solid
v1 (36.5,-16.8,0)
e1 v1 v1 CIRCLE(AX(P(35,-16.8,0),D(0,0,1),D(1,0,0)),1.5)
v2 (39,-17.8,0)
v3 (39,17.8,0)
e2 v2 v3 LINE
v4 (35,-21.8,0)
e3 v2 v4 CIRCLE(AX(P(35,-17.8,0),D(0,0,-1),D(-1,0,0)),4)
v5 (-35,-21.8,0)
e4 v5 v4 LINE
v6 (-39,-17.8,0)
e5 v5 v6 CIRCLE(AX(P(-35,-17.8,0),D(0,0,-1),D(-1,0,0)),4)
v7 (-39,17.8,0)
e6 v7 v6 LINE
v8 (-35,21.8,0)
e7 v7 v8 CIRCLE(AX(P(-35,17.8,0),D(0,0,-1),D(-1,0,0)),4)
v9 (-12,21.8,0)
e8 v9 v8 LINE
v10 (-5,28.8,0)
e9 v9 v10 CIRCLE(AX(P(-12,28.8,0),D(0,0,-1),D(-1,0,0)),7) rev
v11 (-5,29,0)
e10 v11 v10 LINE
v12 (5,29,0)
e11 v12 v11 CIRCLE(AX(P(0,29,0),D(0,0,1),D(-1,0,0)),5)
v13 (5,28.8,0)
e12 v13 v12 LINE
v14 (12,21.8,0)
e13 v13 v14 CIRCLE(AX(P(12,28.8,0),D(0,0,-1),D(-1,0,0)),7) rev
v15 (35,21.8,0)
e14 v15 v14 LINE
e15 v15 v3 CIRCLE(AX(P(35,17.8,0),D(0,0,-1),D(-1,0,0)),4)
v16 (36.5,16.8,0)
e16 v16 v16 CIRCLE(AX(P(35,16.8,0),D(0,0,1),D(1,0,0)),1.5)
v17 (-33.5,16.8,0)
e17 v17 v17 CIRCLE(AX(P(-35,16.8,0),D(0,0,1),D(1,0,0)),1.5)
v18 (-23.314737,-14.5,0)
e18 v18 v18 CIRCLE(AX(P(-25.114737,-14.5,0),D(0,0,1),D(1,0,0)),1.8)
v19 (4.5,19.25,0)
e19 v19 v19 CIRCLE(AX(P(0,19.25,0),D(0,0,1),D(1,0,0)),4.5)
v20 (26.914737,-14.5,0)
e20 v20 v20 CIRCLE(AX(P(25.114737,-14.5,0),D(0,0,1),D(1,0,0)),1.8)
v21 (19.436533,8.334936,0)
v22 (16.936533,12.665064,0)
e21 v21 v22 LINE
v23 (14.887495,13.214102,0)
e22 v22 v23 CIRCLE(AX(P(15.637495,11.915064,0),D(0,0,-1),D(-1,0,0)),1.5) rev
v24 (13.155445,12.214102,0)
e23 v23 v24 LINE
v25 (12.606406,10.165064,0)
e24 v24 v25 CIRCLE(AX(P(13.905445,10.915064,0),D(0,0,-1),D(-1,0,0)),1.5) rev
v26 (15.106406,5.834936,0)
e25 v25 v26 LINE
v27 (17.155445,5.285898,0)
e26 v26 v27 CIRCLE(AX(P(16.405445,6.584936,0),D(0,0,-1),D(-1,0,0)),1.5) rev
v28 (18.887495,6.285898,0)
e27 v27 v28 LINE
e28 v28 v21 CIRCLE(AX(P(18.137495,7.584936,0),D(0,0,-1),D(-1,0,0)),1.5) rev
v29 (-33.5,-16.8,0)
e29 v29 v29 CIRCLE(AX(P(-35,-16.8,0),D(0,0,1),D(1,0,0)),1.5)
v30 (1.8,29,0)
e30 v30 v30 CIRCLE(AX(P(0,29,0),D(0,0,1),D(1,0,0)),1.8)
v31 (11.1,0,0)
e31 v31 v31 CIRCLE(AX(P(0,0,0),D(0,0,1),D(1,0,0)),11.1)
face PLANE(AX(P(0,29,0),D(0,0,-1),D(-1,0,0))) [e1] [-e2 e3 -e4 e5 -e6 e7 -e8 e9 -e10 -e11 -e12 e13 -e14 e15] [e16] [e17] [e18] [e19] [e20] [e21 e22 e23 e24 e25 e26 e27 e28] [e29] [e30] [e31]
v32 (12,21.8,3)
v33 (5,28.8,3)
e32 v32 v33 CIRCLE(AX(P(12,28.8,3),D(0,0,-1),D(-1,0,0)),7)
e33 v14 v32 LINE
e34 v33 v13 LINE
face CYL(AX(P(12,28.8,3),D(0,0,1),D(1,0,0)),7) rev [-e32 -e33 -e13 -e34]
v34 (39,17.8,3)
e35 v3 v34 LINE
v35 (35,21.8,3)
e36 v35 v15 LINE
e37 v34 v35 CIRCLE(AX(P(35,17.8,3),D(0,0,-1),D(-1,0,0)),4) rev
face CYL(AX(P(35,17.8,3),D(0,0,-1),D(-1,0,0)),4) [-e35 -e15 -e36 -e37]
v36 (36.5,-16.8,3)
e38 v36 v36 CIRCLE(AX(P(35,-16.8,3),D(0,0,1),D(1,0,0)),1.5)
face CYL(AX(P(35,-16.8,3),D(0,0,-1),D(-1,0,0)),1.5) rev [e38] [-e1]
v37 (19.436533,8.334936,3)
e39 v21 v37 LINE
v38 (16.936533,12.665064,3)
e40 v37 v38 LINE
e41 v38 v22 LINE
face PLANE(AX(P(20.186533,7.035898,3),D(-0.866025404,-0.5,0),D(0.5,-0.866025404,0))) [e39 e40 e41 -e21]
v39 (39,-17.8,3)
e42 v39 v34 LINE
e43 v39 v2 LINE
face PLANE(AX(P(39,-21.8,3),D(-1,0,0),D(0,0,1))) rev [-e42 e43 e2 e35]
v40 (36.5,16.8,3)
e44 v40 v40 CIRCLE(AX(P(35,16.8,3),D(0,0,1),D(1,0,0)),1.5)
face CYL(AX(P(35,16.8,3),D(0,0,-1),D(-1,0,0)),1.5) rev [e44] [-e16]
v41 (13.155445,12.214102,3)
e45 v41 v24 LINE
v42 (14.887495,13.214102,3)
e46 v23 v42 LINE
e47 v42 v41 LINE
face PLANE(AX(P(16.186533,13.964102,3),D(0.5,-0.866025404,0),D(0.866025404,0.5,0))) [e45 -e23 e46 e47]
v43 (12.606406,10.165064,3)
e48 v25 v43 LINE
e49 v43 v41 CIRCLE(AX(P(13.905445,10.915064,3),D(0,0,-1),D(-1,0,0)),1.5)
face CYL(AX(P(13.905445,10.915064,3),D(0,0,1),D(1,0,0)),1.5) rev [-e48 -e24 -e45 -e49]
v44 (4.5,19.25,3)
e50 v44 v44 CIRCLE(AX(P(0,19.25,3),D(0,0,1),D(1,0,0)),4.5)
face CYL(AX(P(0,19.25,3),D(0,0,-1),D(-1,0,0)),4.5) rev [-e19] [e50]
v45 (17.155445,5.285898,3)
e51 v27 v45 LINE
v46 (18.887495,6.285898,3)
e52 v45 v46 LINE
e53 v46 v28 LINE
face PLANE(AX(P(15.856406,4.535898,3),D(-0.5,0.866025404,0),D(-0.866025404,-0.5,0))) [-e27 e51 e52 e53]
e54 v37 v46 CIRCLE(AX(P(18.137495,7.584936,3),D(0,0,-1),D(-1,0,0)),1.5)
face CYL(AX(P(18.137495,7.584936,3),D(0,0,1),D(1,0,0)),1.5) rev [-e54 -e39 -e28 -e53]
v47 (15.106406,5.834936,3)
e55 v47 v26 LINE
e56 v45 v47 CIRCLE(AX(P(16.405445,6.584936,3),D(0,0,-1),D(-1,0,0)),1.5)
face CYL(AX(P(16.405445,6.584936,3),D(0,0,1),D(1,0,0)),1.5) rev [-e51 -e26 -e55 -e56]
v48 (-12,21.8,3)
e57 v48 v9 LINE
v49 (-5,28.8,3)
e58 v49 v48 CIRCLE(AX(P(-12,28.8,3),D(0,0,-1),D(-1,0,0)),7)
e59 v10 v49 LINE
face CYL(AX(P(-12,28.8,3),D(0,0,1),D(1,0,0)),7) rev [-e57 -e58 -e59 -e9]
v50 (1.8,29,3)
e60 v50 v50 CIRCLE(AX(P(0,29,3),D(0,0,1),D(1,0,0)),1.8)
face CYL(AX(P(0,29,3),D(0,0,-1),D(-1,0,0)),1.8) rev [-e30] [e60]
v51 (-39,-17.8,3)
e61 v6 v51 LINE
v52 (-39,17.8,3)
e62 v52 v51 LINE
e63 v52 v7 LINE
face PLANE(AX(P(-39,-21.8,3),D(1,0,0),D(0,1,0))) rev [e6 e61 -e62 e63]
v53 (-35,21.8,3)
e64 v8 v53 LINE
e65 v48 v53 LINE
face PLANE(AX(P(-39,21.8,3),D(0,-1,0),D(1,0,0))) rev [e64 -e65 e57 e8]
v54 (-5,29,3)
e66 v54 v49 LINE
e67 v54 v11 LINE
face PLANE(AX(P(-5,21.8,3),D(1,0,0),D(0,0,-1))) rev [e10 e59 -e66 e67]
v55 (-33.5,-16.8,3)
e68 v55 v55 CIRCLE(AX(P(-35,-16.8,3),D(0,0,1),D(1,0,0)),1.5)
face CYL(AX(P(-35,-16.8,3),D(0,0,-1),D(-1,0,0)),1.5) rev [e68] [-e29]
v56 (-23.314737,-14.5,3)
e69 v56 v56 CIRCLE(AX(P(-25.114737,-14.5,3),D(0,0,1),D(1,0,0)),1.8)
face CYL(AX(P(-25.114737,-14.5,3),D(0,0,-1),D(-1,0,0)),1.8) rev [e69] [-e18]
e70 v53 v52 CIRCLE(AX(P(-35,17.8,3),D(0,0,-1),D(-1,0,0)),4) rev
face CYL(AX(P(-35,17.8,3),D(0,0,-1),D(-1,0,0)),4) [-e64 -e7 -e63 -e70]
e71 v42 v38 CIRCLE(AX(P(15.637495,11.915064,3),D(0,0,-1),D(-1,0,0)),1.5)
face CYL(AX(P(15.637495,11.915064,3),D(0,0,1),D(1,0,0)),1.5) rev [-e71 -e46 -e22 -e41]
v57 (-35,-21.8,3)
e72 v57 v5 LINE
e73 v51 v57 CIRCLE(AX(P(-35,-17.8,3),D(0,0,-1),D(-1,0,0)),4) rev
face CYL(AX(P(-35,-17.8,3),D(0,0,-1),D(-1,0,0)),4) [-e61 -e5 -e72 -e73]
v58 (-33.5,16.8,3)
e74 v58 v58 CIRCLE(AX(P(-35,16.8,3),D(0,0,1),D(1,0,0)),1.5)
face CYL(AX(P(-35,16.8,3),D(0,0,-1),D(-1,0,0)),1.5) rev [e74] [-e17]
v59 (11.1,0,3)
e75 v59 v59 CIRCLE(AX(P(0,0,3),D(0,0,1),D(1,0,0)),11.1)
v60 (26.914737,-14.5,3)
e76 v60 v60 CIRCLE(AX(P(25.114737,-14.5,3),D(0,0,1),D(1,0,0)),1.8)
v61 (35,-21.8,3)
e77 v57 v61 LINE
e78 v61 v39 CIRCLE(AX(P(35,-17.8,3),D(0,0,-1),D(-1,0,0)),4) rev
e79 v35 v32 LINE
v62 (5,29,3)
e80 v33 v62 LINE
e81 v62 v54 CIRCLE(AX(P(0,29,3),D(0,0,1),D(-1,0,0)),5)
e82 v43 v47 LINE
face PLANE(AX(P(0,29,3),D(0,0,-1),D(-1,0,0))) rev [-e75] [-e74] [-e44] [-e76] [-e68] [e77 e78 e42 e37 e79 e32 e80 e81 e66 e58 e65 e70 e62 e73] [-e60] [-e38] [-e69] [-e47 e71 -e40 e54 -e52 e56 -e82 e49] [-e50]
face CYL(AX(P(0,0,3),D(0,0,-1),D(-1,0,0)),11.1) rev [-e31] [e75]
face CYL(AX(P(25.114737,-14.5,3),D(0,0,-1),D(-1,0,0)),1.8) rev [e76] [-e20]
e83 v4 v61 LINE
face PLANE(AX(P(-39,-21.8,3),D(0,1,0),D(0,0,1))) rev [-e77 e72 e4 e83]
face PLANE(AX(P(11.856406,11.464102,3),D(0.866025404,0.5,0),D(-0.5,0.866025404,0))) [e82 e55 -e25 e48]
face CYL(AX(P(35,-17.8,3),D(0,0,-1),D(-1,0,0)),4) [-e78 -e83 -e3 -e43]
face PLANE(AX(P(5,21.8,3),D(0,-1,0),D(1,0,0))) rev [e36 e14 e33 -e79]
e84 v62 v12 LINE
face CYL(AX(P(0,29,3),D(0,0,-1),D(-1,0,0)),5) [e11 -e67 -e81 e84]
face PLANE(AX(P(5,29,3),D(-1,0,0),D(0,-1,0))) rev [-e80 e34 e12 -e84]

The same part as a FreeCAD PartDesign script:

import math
import FreeCAD as App
import Part
import Sketcher
Q = App.Units.Quantity


def edges_at(feature, points):
    """Names of the edges that pass closest to the given points."""
    edges = feature.Shape.Edges
    near = lambda p: min(range(len(edges)), key=lambda i: edges[i].distToShape(Part.Vertex(*p))[0])
    return sorted({f"Edge{near(p) + 1}" for p in points})


def add_polygon(sketch, points):
    """Adds a closed chain of lines whose ends are joined by coincident constraints."""
    first, n = sketch.GeometryCount, len(points)
    for a, b in zip(points, points[1:] + points[:1]):
        sketch.addGeometry(Part.LineSegment(App.Vector(*a, 0), App.Vector(*b, 0)), False)
    for i in range(n):
        sketch.addConstraint(Sketcher.Constraint("Coincident", first + i, 2, first + (i + 1) % n, 1))

doc = App.newDocument("Part")
params = doc.addObject("Spreadsheet::Sheet", "Params")
for row, (alias, value) in enumerate([
    ("sketch1_diameter", "3 mm"),
    ("sketch1_diameter2", "9 mm"),
    ("sketch1_radius", "5 mm"),
    ("sketch1_diameter3", "3.6 mm"),
    ("sketch1_diameter4", "22.2 mm"),
    ("pad1_length", "3 mm"),
    ("fillet_radius", "1.5 mm"),
    ("fillet2_radius", "7 mm"),
    ("fillet3_radius", "4 mm"),
], start=1):
    params.set(f"A{row}", alias)
    params.set(f"B{row}", "=" + value)
    params.setAlias(f"B{row}", alias)

body = doc.addObject("PartDesign::Body", "Body")

sketch1 = body.newObject("Sketcher::SketchObject", "Sketch")
sketch1.AttachmentSupport = (doc.getObject("XY_Plane"), [""])
sketch1.MapMode = "FlatFace"
sketch1.addGeometry(Part.LineSegment(App.Vector(-5, 29, 0), App.Vector(-5, 21.8, 0)), False)
sketch1.addGeometry(Part.LineSegment(App.Vector(-5, 21.8, 0), App.Vector(-39, 21.8, 0)), False)
sketch1.addGeometry(Part.LineSegment(App.Vector(-39, 21.8, 0), App.Vector(-39, -21.8, 0)), False)
sketch1.addGeometry(Part.LineSegment(App.Vector(-39, -21.8, 0), App.Vector(39, -21.8, 0)), False)
sketch1.addGeometry(Part.LineSegment(App.Vector(39, -21.8, 0), App.Vector(39, 21.8, 0)), False)
sketch1.addGeometry(Part.LineSegment(App.Vector(39, 21.8, 0), App.Vector(5, 21.8, 0)), False)
sketch1.addGeometry(Part.LineSegment(App.Vector(5, 21.8, 0), App.Vector(5, 29, 0)), False)
sketch1.addGeometry(Part.ArcOfCircle(Part.Circle(App.Vector(0, 29, 0), App.Vector(0, 0, 1), 5), math.radians(0), math.radians(180)), False)
sketch1.addGeometry(Part.Circle(App.Vector(35, -16.8, 0), App.Vector(0, 0, 1), 1.5), False)
sketch1.addGeometry(Part.Circle(App.Vector(25.114737, -14.5, 0), App.Vector(0, 0, 1), 1.8), False)
sketch1.addGeometry(Part.Circle(App.Vector(-25.114737, -14.5, 0), App.Vector(0, 0, 1), 1.8), False)
sketch1.addGeometry(Part.Circle(App.Vector(-35, -16.8, 0), App.Vector(0, 0, 1), 1.5), False)
sketch1.addGeometry(Part.Circle(App.Vector(0, 0, 0), App.Vector(0, 0, 1), 11.1), False)
sketch1.addGeometry(Part.Circle(App.Vector(35, 16.8, 0), App.Vector(0, 0, 1), 1.5), False)
add_polygon(sketch1, [(11.856406, 11.464102), (16.186533, 13.964102), (20.186533, 7.035898), (15.856406, 4.535898)])
sketch1.addGeometry(Part.Circle(App.Vector(-35, 16.8, 0), App.Vector(0, 0, 1), 1.5), False)
sketch1.addGeometry(Part.Circle(App.Vector(0, 19.25, 0), App.Vector(0, 0, 1), 4.5), False)
sketch1.addGeometry(Part.Circle(App.Vector(0, 29, 0), App.Vector(0, 0, 1), 1.8), False)
sketch1.addConstraint([
    Sketcher.Constraint("Coincident", 0, 2, 1, 1),
    Sketcher.Constraint("Coincident", 1, 2, 2, 1),
    Sketcher.Constraint("Coincident", 2, 2, 3, 1),
    Sketcher.Constraint("Coincident", 3, 2, 4, 1),
    Sketcher.Constraint("Coincident", 4, 2, 5, 1),
    Sketcher.Constraint("Coincident", 5, 2, 6, 1),
    Sketcher.Constraint("Tangent", 6, 2, 7, 1),
    Sketcher.Constraint("Tangent", 7, 2, 0, 1),
    Sketcher.Constraint("Vertical", 0),
    Sketcher.Constraint("Horizontal", 1),
    Sketcher.Constraint("Vertical", 2),
    Sketcher.Constraint("Horizontal", 3),
    Sketcher.Constraint("Vertical", 4),
    Sketcher.Constraint("Horizontal", 5),
    Sketcher.Constraint("Vertical", 6),
    Sketcher.Constraint("Coincident", 12, 3, -1, 1),
    Sketcher.Constraint("Coincident", 20, 3, 7, 3),
    Sketcher.Constraint("Equal", 9, 10),
    Sketcher.Constraint("Equal", 8, 11),
    Sketcher.Constraint("Equal", 11, 13),
    Sketcher.Constraint("Equal", 13, 18),
    Sketcher.Constraint("Equal", 10, 20),
    Sketcher.Constraint("Symmetric", 11, 3, 13, 3, -1, 1),
    Sketcher.Constraint("Symmetric", 8, 3, 18, 3, -1, 1),
    Sketcher.Constraint("Symmetric", 1, 2, 3, 2, -1, 1),
    Sketcher.Constraint("Symmetric", 9, 3, 10, 3, -2),
    Sketcher.Constraint("Symmetric", 8, 3, 11, 3, -2),
    Sketcher.Constraint("Symmetric", 0, 2, 5, 2, -2),
    Sketcher.Constraint("PointOnObject", 19, 3, -2),
    Sketcher.Constraint("Perpendicular", 14, 15),
    Sketcher.Constraint("Perpendicular", 15, 16),
    Sketcher.Constraint("Perpendicular", 16, 17),
    Sketcher.Constraint("Diameter", 8, 3.0),
    Sketcher.Constraint("Diameter", 19, 9.0),
    Sketcher.Constraint("Radius", 7, 5.0),
    Sketcher.Constraint("Diameter", 9, 3.6),
    Sketcher.Constraint("Diameter", 12, 22.2),
    Sketcher.Constraint("DistanceX", 1, 2, 1, 1, 34.0),
    Sketcher.Constraint("Angle", 14, Q("30 deg")),
    Sketcher.Constraint("Distance", 14, 5.0),
    Sketcher.Constraint("Distance", 15, 8.0),
    Sketcher.Constraint("DistanceY", 0, 2, 0, 1, 7.2),
    Sketcher.Constraint("DistanceY", 2, 2, 2, 1, 43.6),
    Sketcher.Constraint("DistanceX", -1, 1, 8, 3, 35.0),
    Sketcher.Constraint("DistanceY", 18, 3, 0, 2, 5.0),
    Sketcher.Constraint("DistanceY", 9, 3, -1, 1, 14.5),
    Sketcher.Constraint("DistanceY", -1, 1, 19, 3, 19.25),
    Sketcher.Constraint("DistanceY", -1, 1, 14, 2, 13.964102),
    Sketcher.Constraint("DistanceX", 16, 2, 9, 3, 9.25833),
    Sketcher.Constraint("DistanceX", -1, 1, 9, 3, 25.114737),
])
sketch1.setExpression("Constraints[36]", "Params.sketch1_diameter")
sketch1.setExpression("Constraints[37]", "Params.sketch1_diameter2")
sketch1.setExpression("Constraints[38]", "Params.sketch1_radius")
sketch1.setExpression("Constraints[39]", "Params.sketch1_diameter3")
sketch1.setExpression("Constraints[40]", "Params.sketch1_diameter4")
pad1 = body.newObject("PartDesign::Pad", "Pad")
pad1.Profile = sketch1
pad1.setExpression("Length", "Params.pad1_length")
doc.recompute()

fillet = body.newObject("PartDesign::Fillet", "Fillet")
fillet.Base = (pad1, edges_at(pad1, [
    (16.187, 13.964, 1.5),
    (11.856, 11.464, 1.5),
    (15.856, 4.536, 1.5),
    (20.187, 7.036, 1.5),
]))
fillet.setExpression("Radius", "Params.fillet_radius")
doc.recompute()

fillet2 = body.newObject("PartDesign::Fillet", "Fillet001")
fillet2.Base = (fillet, edges_at(fillet, [(-5, 21.8, 1.5), (5, 21.8, 1.5)]))
fillet2.setExpression("Radius", "Params.fillet2_radius")
doc.recompute()

fillet3 = body.newObject("PartDesign::Fillet", "Fillet002")
fillet3.Base = (fillet2, edges_at(fillet2, [
    (39, 21.8, 1.5),
    (39, -21.8, 1.5),
    (-39, -21.8, 1.5),
    (-39, 21.8, 1.5),
]))
fillet3.setExpression("Radius", "Params.fillet3_radius")

doc.recompute()
